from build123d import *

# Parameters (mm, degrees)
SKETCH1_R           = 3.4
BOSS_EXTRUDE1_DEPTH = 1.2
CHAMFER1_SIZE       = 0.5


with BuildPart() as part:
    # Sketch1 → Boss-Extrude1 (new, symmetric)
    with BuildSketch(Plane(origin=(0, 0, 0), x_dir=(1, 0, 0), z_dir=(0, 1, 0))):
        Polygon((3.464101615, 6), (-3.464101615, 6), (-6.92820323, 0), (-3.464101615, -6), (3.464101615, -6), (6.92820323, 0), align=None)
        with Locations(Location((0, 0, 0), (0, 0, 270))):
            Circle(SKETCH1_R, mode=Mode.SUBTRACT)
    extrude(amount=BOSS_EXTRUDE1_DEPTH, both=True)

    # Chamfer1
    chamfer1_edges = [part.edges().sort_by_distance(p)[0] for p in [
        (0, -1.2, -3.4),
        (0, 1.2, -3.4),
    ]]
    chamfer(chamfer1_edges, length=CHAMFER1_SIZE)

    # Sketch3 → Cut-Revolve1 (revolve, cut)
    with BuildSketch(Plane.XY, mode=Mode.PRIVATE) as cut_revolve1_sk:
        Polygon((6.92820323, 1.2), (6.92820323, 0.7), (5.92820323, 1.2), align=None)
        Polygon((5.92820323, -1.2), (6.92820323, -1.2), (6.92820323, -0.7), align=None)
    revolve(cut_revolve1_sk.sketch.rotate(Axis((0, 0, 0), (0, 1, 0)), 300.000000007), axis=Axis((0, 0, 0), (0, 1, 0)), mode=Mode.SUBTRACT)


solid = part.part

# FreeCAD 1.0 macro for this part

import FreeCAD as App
import Part
import Sketcher
from FreeCAD import Vector
Q = App.Units.Quantity


def edges_at(feature, points):
    """Names of the edges that pass closest to the given points."""
    edges = feature.Shape.Edges
    near = lambda p: min(range(len(edges)), key=lambda i: edges[i].distToShape(Part.Vertex(*p))[0])
    return sorted({f"Edge{near(p) + 1}" for p in points})

doc = App.newDocument("Part")
body = doc.addObject("PartDesign::Body", "Body")

# Sketch on XZ plane
sketch1 = doc.addObject("Sketcher::SketchObject", "Sketch")
body.addObject(sketch1)
sketch1.AttachmentSupport = (doc.XZ_Plane, [""])
sketch1.MapMode = "FlatFace"
sketch1.addGeometry([
    Part.LineSegment(Vector(3.464102, -6, 0), Vector(-3.464102, -6, 0)),  # 0
    Part.LineSegment(Vector(-3.464102, -6, 0), Vector(-6.928203, 0, 0)),  # 1
    Part.LineSegment(Vector(-6.928203, 0, 0), Vector(-3.464102, 6, 0)),  # 2
    Part.LineSegment(Vector(-3.464102, 6, 0), Vector(3.464102, 6, 0)),  # 3
    Part.LineSegment(Vector(3.464102, 6, 0), Vector(6.928203, 0, 0)),  # 4
    Part.LineSegment(Vector(6.928203, 0, 0), Vector(3.464102, -6, 0)),  # 5
    Part.Circle(Vector(0, 0, 0), Vector(0, 0, 1), 3.4),  # 6
], False)
sketch1.addConstraint([
    Sketcher.Constraint("Coincident", 0, 2, 1, 1),
    Sketcher.Constraint("Coincident", 1, 2, 2, 1),
    Sketcher.Constraint("Coincident", 2, 2, 3, 1),
    Sketcher.Constraint("Coincident", 3, 2, 4, 1),
    Sketcher.Constraint("Coincident", 4, 2, 5, 1),
    Sketcher.Constraint("Coincident", 5, 2, 0, 1),
    Sketcher.Constraint("Horizontal", 0),
    Sketcher.Constraint("Horizontal", 3),
    Sketcher.Constraint("Coincident", 6, 3, -1, 1),
    Sketcher.Constraint("Symmetric", 0, 2, 3, 2, -1, 1),
    Sketcher.Constraint("Symmetric", 1, 2, 4, 2, -1, 1),
    Sketcher.Constraint("PointOnObject", 1, 2, -1),
    Sketcher.Constraint("Parallel", 2, 5),
    Sketcher.Constraint("Vertical", 0, 2, 2, 2),
    Sketcher.Constraint("Diameter", 6, 6.8),
    Sketcher.Constraint("Angle", 1, Q("120 deg")),
    Sketcher.Constraint("DistanceY", 0, 2, -1, 1, 6.0),
    Sketcher.Constraint("DistanceX", 0, 2, -1, 1, 3.464102),
])
pad1 = doc.addObject("PartDesign::Pad", "Pad")
body.addObject(pad1)
pad1.Profile = sketch1
pad1.Length = 2.4
pad1.Midplane = True
doc.recompute()

chamfer = doc.addObject("PartDesign::Chamfer", "Chamfer")
body.addObject(chamfer)
chamfer.Base = (pad1, edges_at(pad1, [(0, -1.2, -3.4), (0, 1.2, -3.4)]))
chamfer.Size = 0.5

# Sketch on XY plane
sketch2 = doc.addObject("Sketcher::SketchObject", "Sketch001")
body.addObject(sketch2)
sketch2.AttachmentSupport = (doc.XY_Plane, [""])
sketch2.MapMode = "FlatFace"
sketch2.addGeometry([
    Part.LineSegment(Vector(6.928203, 0.7, 0), Vector(6.928203, 1.2, 0)),  # 0
    Part.LineSegment(Vector(6.928203, 1.2, 0), Vector(5.928203, 1.2, 0)),  # 1
    Part.LineSegment(Vector(5.928203, 1.2, 0), Vector(6.928203, 0.7, 0)),  # 2
    Part.LineSegment(Vector(5.928203, -1.2, 0), Vector(6.928203, -1.2, 0)),  # 3
    Part.LineSegment(Vector(6.928203, -1.2, 0), Vector(6.928203, -0.7, 0)),  # 4
    Part.LineSegment(Vector(6.928203, -0.7, 0), Vector(5.928203, -1.2, 0)),  # 5
], False)
sketch2.addConstraint([
    Sketcher.Constraint("Coincident", 0, 2, 1, 1),
    Sketcher.Constraint("Coincident", 1, 2, 2, 1),
    Sketcher.Constraint("Coincident", 2, 2, 0, 1),
    Sketcher.Constraint("Coincident", 3, 2, 4, 1),
    Sketcher.Constraint("Coincident", 4, 2, 5, 1),
    Sketcher.Constraint("Coincident", 5, 2, 3, 1),
    Sketcher.Constraint("Vertical", 0),
    Sketcher.Constraint("Horizontal", 1),
    Sketcher.Constraint("Horizontal", 3),
    Sketcher.Constraint("Vertical", 4),
    Sketcher.Constraint("Symmetric", 0, 2, 3, 2, -1),
    Sketcher.Constraint("Vertical", 1, 2, 5, 2),
    Sketcher.Constraint("Equal", 0, 4),
    Sketcher.Constraint("DistanceX", 1, 2, 1, 1, 1.0),
    Sketcher.Constraint("DistanceY", 0, 1, 0, 2, 0.5),
    Sketcher.Constraint("DistanceY", -1, 1, 0, 2, 1.2),
    Sketcher.Constraint("DistanceX", -1, 1, 0, 2, 6.928203),
])
groove = doc.addObject("PartDesign::Groove", "Groove")
body.addObject(groove)
groove.Profile = sketch2
groove.ReferenceAxis = (sketch2, ["V_Axis"])
groove.Angle = 360

doc.recompute()
